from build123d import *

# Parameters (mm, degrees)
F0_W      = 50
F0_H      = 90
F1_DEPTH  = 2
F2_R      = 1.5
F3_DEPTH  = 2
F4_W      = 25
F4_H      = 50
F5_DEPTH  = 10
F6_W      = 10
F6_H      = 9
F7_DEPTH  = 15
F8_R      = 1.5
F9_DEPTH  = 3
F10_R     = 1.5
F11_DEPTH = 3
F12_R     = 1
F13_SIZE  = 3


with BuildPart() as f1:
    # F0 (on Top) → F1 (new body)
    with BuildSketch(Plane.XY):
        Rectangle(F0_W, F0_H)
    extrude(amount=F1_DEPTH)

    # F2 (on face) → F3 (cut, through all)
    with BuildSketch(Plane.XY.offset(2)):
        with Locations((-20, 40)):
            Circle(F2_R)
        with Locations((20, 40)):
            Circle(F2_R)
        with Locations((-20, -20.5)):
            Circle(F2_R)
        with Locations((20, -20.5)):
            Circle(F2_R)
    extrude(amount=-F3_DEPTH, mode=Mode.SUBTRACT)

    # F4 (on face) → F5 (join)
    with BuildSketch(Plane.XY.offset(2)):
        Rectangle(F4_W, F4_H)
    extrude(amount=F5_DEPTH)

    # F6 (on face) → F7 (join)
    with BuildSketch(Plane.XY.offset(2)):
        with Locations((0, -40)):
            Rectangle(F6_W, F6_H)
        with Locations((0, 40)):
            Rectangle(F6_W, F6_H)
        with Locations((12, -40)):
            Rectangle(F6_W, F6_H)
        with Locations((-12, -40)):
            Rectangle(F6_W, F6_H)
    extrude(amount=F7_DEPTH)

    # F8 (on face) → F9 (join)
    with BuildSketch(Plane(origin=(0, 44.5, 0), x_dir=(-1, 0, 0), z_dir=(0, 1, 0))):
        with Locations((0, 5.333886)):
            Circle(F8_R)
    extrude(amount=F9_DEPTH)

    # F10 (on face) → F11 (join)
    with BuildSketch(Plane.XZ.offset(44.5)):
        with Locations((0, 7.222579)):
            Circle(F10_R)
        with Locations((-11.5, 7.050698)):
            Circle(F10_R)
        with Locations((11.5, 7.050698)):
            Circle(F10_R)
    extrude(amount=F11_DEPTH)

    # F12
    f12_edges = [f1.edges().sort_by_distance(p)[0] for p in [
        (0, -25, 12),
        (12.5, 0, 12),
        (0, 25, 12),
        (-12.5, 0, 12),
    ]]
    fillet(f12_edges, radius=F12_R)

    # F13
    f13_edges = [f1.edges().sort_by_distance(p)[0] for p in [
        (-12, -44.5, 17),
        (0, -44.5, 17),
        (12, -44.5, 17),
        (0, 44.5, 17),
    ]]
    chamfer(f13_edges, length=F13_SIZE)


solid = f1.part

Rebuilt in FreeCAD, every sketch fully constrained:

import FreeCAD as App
import Part
import Sketcher

V = App.Vector


def edges_at(feature, points):
    """Names of the edges that pass closest to the given points."""
    edges = feature.Shape.Edges
    near = lambda p: min(range(len(edges)), key=lambda i: edges[i].distToShape(Part.Vertex(*p))[0])
    return sorted({f"Edge{near(p) + 1}" for p in points})


def add_polygon(sketch, points):
    """Adds a closed chain of lines whose ends are joined by coincident constraints."""
    first, n = sketch.GeometryCount, len(points)
    for a, b in zip(points, points[1:] + points[:1]):
        sketch.addGeometry(Part.LineSegment(App.Vector(*a, 0), App.Vector(*b, 0)), False)
    for i in range(n):
        sketch.addConstraint(Sketcher.Constraint("Coincident", first + i, 2, first + (i + 1) % n, 1))

doc = App.newDocument("Part")
body = doc.addObject("PartDesign::Body", "Body")

sketch1 = doc.addObject("Sketcher::SketchObject", "Sketch")
body.addObject(sketch1)
sketch1.AttachmentSupport = (doc.XY_Plane, [""])
sketch1.MapMode = "FlatFace"
add_polygon(sketch1, [(-25, 45), (-25, -45), (25, -45), (25, 45)])
sketch1.addConstraint(Sketcher.Constraint("Vertical", 0))
sketch1.addConstraint(Sketcher.Constraint("Horizontal", 1))
sketch1.addConstraint(Sketcher.Constraint("Vertical", 2))
sketch1.addConstraint(Sketcher.Constraint("Horizontal", 3))
sketch1.addConstraint(Sketcher.Constraint("Symmetric", 0, 2, 2, 2, -1, 1))
sketch1.addConstraint(Sketcher.Constraint("DistanceX", 1, 1, 1, 2, 50.0))
sketch1.addConstraint(Sketcher.Constraint("DistanceY", 0, 2, 0, 1, 90.0))
pad1 = doc.addObject("PartDesign::Pad", "Pad")
body.addObject(pad1)
pad1.Profile = sketch1
pad1.Length = 2

sketch2 = doc.addObject("Sketcher::SketchObject", "Sketch001")
body.addObject(sketch2)
sketch2.AttachmentSupport = (doc.XY_Plane, [""])
sketch2.MapMode = "FlatFace"
sketch2.AttachmentOffset = App.Placement(V(0, 0, 2), App.Rotation())
sketch2.addGeometry(Part.Circle(V(-20, 40, 0), V(0, 0, 1), 1.5), False)
sketch2.addGeometry(Part.Circle(V(20, 40, 0), V(0, 0, 1), 1.5), False)
sketch2.addGeometry(Part.Circle(V(-20, -20.5, 0), V(0, 0, 1), 1.5), False)
sketch2.addGeometry(Part.Circle(V(20, -20.5, 0), V(0, 0, 1), 1.5), False)
sketch2.addConstraint(Sketcher.Constraint("Equal", 0, 1))
sketch2.addConstraint(Sketcher.Constraint("Equal", 1, 2))
sketch2.addConstraint(Sketcher.Constraint("Equal", 2, 3))
sketch2.addConstraint(Sketcher.Constraint("Symmetric", 0, 3, 1, 3, -2))
sketch2.addConstraint(Sketcher.Constraint("Symmetric", 2, 3, 3, 3, -2))
sketch2.addConstraint(Sketcher.Constraint("Vertical", 0, 3, 2, 3))
sketch2.addConstraint(Sketcher.Constraint("Diameter", 0, 3.0))
sketch2.addConstraint(Sketcher.Constraint("DistanceX", 0, 3, -1, 1, 20.0))
sketch2.addConstraint(Sketcher.Constraint("DistanceY", -1, 1, 0, 3, 40.0))
sketch2.addConstraint(Sketcher.Constraint("DistanceY", 2, 3, -1, 1, 20.5))
pocket1 = doc.addObject("PartDesign::Pocket", "Pocket")
body.addObject(pocket1)
pocket1.Profile = sketch2
pocket1.Type = "ThroughAll"

sketch3 = doc.addObject("Sketcher::SketchObject", "Sketch002")
body.addObject(sketch3)
sketch3.AttachmentSupport = (doc.XY_Plane, [""])
sketch3.MapMode = "FlatFace"
sketch3.AttachmentOffset = App.Placement(V(0, 0, 2), App.Rotation())
add_polygon(sketch3, [(-12, 25), (-12, -25), (12, -25), (12, 25)])
sketch3.addConstraint(Sketcher.Constraint("Vertical", 0))
sketch3.addConstraint(Sketcher.Constraint("Horizontal", 1))
sketch3.addConstraint(Sketcher.Constraint("Vertical", 2))
sketch3.addConstraint(Sketcher.Constraint("Horizontal", 3))
sketch3.addConstraint(Sketcher.Constraint("Symmetric", 0, 2, 2, 2, -1, 1))
sketch3.addConstraint(Sketcher.Constraint("DistanceX", 1, 1, 1, 2, 25.0))
sketch3.addConstraint(Sketcher.Constraint("DistanceY", 0, 2, 0, 1, 50.0))
pad2 = doc.addObject("PartDesign::Pad", "Pad001")
body.addObject(pad2)
pad2.Profile = sketch3
pad2.Length = 10

sketch4 = doc.addObject("Sketcher::SketchObject", "Sketch003")
body.addObject(sketch4)
sketch4.AttachmentSupport = (doc.XY_Plane, [""])
sketch4.MapMode = "FlatFace"
sketch4.AttachmentOffset = App.Placement(V(0, 0, 2), App.Rotation())
add_polygon(sketch4, [(-5, -36), (-5, -44), (5, -44), (5, -36)])
add_polygon(sketch4, [(-5, 44), (-5, 36), (5, 36), (5, 44)])
add_polygon(sketch4, [(7, -36), (7, -44), (17, -44), (17, -36)])
add_polygon(sketch4, [(-17, -36), (-17, -44), (-7, -44), (-7, -36)])
sketch4.addConstraint(Sketcher.Constraint("Vertical", 0))
sketch4.addConstraint(Sketcher.Constraint("Horizontal", 1))
sketch4.addConstraint(Sketcher.Constraint("Vertical", 2))
sketch4.addConstraint(Sketcher.Constraint("Horizontal", 3))
sketch4.addConstraint(Sketcher.Constraint("Vertical", 4))
sketch4.addConstraint(Sketcher.Constraint("Horizontal", 5))
sketch4.addConstraint(Sketcher.Constraint("Vertical", 6))
sketch4.addConstraint(Sketcher.Constraint("Horizontal", 7))
sketch4.addConstraint(Sketcher.Constraint("Vertical", 8))
sketch4.addConstraint(Sketcher.Constraint("Horizontal", 9))
sketch4.addConstraint(Sketcher.Constraint("Vertical", 10))
sketch4.addConstraint(Sketcher.Constraint("Horizontal", 11))
sketch4.addConstraint(Sketcher.Constraint("Vertical", 12))
sketch4.addConstraint(Sketcher.Constraint("Horizontal", 13))
sketch4.addConstraint(Sketcher.Constraint("Vertical", 14))
sketch4.addConstraint(Sketcher.Constraint("Horizontal", 15))
sketch4.addConstraint(Sketcher.Constraint("Symmetric", 2, 2, 4, 2, -1, 1))
sketch4.addConstraint(Sketcher.Constraint("Symmetric", 0, 2, 6, 2, -1, 1))
sketch4.addConstraint(Sketcher.Constraint("Symmetric", 9, 2, 12, 2, -2))
sketch4.addConstraint(Sketcher.Constraint("Symmetric", 11, 2, 14, 2, -2))
sketch4.addConstraint(Sketcher.Constraint("Horizontal", 1, 2, 8, 2))
sketch4.addConstraint(Sketcher.Constraint("Horizontal", 3, 2, 10, 2))
sketch4.addConstraint(Sketcher.Constraint("Vertical", 3, 2, 4, 2))
sketch4.addConstraint(Sketcher.Constraint("Equal", 7, 9))
sketch4.addConstraint(Sketcher.Constraint("DistanceX", 1, 1, 1, 2, 10.0))
sketch4.addConstraint(Sketcher.Constraint("DistanceY", 0, 2, 0, 1, 9.0))
sketch4.addConstraint(Sketcher.Constraint("DistanceX", -1, 1, 8, 2, 7.0))
sketch4.addConstraint(Sketcher.Constraint("DistanceY", 3, 2, 4, 2, 71.0))
pad3 = doc.addObject("PartDesign::Pad", "Pad002")
body.addObject(pad3)
pad3.Profile = sketch4
pad3.Length = 15

sketch5 = doc.addObject("Sketcher::SketchObject", "Sketch004")
body.addObject(sketch5)
sketch5.AttachmentSupport = (doc.XZ_Plane, [""])
sketch5.MapMode = "FlatFace"
sketch5.AttachmentOffset = App.Placement(V(0, 0, -44.5), App.Rotation())
sketch5.addGeometry(Part.Circle(V(0, 5.3, 0), V(0, 0, 1), 1.5), False)
sketch5.addConstraint(Sketcher.Constraint("PointOnObject", 0, 3, -2))
sketch5.addConstraint(Sketcher.Constraint("Diameter", 0, 3.0))
sketch5.addConstraint(Sketcher.Constraint("DistanceY", -1, 1, 0, 3, 5.333886))
pad4 = doc.addObject("PartDesign::Pad", "Pad003")
body.addObject(pad4)
pad4.Profile = sketch5
pad4.Length = 3
pad4.Reversed = True

sketch6 = doc.addObject("Sketcher::SketchObject", "Sketch005")
body.addObject(sketch6)
sketch6.AttachmentSupport = (doc.XZ_Plane, [""])
sketch6.MapMode = "FlatFace"
sketch6.AttachmentOffset = App.Placement(V(0, 0, 44.5), App.Rotation())
sketch6.addGeometry(Part.Circle(V(0, 7.2, 0), V(0, 0, 1), 1.5), False)
sketch6.addGeometry(Part.Circle(V(-11.5, 7.1, 0), V(0, 0, 1), 1.5), False)
sketch6.addGeometry(Part.Circle(V(11.5, 7.1, 0), V(0, 0, 1), 1.5), False)
sketch6.addConstraint(Sketcher.Constraint("Equal", 0, 1))
sketch6.addConstraint(Sketcher.Constraint("Equal", 1, 2))
sketch6.addConstraint(Sketcher.Constraint("Symmetric", 1, 3, 2, 3, -2))
sketch6.addConstraint(Sketcher.Constraint("PointOnObject", 0, 3, -2))
sketch6.addConstraint(Sketcher.Constraint("Diameter", 0, 3.0))
sketch6.addConstraint(Sketcher.Constraint("DistanceX", 1, 3, 2, 3, 23.0))
sketch6.addConstraint(Sketcher.Constraint("DistanceY", -1, 1, 0, 3, 7.222579))
sketch6.addConstraint(Sketcher.Constraint("DistanceY", 1, 3, 0, 3, 0.171881))
pad5 = doc.addObject("PartDesign::Pad", "Pad004")
body.addObject(pad5)
pad5.Profile = sketch6
pad5.Length = 3
doc.recompute()

fillet = doc.addObject("PartDesign::Fillet", "Fillet")
body.addObject(fillet)
fillet.Base = (pad5, edges_at(pad5, [
    (0, -25, 12),
    (12.5, 0, 12),
    (0, 25, 12),
    (-12.5, 0, 12),
]))
fillet.Radius = 1
doc.recompute()

chamfer = doc.addObject("PartDesign::Chamfer", "Chamfer")
body.addObject(chamfer)
chamfer.Base = (fillet, edges_at(fillet, [
    (-12, -44.5, 17),
    (0, -44.5, 17),
    (12, -44.5, 17),
    (0, 44.5, 17),
]))
chamfer.Size = 3

doc.recompute()
